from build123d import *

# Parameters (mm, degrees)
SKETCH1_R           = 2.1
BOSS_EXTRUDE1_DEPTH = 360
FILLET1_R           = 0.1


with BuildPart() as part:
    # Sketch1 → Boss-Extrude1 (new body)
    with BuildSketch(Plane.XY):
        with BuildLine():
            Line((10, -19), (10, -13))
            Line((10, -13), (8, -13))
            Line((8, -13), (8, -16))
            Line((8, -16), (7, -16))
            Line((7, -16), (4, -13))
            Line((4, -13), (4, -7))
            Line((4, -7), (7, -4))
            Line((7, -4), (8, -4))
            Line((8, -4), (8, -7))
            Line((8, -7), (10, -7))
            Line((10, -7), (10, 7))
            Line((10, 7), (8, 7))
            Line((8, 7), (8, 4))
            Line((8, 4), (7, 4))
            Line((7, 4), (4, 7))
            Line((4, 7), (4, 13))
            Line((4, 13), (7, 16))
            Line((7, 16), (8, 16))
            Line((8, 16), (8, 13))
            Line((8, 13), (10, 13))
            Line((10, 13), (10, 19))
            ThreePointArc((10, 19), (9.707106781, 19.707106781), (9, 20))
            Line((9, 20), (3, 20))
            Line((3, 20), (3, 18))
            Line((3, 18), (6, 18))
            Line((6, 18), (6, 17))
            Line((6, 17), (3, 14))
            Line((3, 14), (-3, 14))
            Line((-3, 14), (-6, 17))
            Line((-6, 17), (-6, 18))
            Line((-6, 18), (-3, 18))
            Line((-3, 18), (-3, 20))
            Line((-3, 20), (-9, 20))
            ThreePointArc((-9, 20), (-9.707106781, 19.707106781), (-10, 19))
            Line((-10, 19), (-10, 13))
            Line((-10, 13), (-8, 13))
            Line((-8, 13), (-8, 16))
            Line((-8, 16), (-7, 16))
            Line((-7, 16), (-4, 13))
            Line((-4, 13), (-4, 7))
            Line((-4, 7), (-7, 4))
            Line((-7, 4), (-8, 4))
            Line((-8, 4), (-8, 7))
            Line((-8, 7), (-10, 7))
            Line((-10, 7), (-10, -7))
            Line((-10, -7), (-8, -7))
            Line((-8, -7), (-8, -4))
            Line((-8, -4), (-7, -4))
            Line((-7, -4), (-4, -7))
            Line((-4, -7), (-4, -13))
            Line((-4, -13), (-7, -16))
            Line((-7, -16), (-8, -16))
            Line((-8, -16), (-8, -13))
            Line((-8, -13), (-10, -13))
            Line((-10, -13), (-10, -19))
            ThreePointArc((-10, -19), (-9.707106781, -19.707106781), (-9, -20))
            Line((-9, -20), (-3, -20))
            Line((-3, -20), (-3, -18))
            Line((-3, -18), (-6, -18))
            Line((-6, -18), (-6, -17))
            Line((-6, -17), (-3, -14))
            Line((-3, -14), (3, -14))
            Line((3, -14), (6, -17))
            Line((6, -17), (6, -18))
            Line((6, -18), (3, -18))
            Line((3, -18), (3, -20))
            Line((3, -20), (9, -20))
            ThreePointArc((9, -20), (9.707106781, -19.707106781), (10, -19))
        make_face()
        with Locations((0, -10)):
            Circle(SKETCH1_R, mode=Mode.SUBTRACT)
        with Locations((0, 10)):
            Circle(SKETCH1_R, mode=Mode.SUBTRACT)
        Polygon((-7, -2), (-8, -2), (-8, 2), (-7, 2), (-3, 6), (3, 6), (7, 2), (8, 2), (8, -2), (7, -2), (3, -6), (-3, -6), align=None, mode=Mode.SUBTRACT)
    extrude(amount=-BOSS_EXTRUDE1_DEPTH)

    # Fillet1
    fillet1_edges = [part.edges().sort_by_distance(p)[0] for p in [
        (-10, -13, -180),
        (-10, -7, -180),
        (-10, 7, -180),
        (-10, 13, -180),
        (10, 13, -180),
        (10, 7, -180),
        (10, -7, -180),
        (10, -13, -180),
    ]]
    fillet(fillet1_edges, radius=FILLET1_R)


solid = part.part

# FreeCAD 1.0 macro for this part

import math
import FreeCAD as App
import Part
import Sketcher

V = App.Vector
Q = App.Units.Quantity


def edges_at(feature, points):
    """Names of the edges that pass closest to the given points."""
    edges = feature.Shape.Edges
    near = lambda p: min(range(len(edges)), key=lambda i: edges[i].distToShape(Part.Vertex(*p))[0])
    return sorted({f"Edge{near(p) + 1}" for p in points})


def add_polygon(sketch, points):
    """Adds a closed chain of lines whose ends are joined by coincident constraints."""
    first, n = sketch.GeometryCount, len(points)
    for a, b in zip(points, points[1:] + points[:1]):
        sketch.addGeometry(Part.LineSegment(App.Vector(*a, 0), App.Vector(*b, 0)), False)
    for i in range(n):
        sketch.addConstraint(Sketcher.Constraint("Coincident", first + i, 2, first + (i + 1) % n, 1))

doc = App.newDocument("Part")
body = doc.addObject("PartDesign::Body", "Body")

sketch1 = doc.addObject("Sketcher::SketchObject", "Sketch")
body.addObject(sketch1)
sketch1.AttachmentSupport = (doc.XY_Plane, [""])
sketch1.MapMode = "FlatFace"
sketch1.addGeometry(Part.LineSegment(V(10, -19, 0), V(10, -13, 0)), False)
sketch1.addGeometry(Part.LineSegment(V(10, -13, 0), V(8, -13, 0)), False)
sketch1.addGeometry(Part.LineSegment(V(8, -13, 0), V(8, -16, 0)), False)
sketch1.addGeometry(Part.LineSegment(V(8, -16, 0), V(7, -16, 0)), False)
sketch1.addGeometry(Part.LineSegment(V(7, -16, 0), V(4, -13, 0)), False)
sketch1.addGeometry(Part.LineSegment(V(4, -13, 0), V(4, -7, 0)), False)
sketch1.addGeometry(Part.LineSegment(V(4, -7, 0), V(7, -4, 0)), False)
sketch1.addGeometry(Part.LineSegment(V(7, -4, 0), V(8, -4, 0)), False)
sketch1.addGeometry(Part.LineSegment(V(8, -4, 0), V(8, -7, 0)), False)
sketch1.addGeometry(Part.LineSegment(V(8, -7, 0), V(10, -7, 0)), False)
sketch1.addGeometry(Part.LineSegment(V(10, -7, 0), V(10, 7, 0)), False)
sketch1.addGeometry(Part.LineSegment(V(10, 7, 0), V(8, 7, 0)), False)
sketch1.addGeometry(Part.LineSegment(V(8, 7, 0), V(8, 4, 0)), False)
sketch1.addGeometry(Part.LineSegment(V(8, 4, 0), V(7, 4, 0)), False)
sketch1.addGeometry(Part.LineSegment(V(7, 4, 0), V(4, 7, 0)), False)
sketch1.addGeometry(Part.LineSegment(V(4, 7, 0), V(4, 13, 0)), False)
sketch1.addGeometry(Part.LineSegment(V(4, 13, 0), V(7, 16, 0)), False)
sketch1.addGeometry(Part.LineSegment(V(7, 16, 0), V(8, 16, 0)), False)
sketch1.addGeometry(Part.LineSegment(V(8, 16, 0), V(8, 13, 0)), False)
sketch1.addGeometry(Part.LineSegment(V(8, 13, 0), V(10, 13, 0)), False)
sketch1.addGeometry(Part.LineSegment(V(10, 13, 0), V(10, 19, 0)), False)
sketch1.addGeometry(Part.ArcOfCircle(Part.Circle(V(9, 19, 0), V(0, 0, 1), 1), math.radians(0), math.radians(90)), False)
sketch1.addGeometry(Part.LineSegment(V(9, 20, 0), V(3, 20, 0)), False)
sketch1.addGeometry(Part.LineSegment(V(3, 20, 0), V(3, 18, 0)), False)
sketch1.addGeometry(Part.LineSegment(V(3, 18, 0), V(6, 18, 0)), False)
sketch1.addGeometry(Part.LineSegment(V(6, 18, 0), V(6, 17, 0)), False)
sketch1.addGeometry(Part.LineSegment(V(6, 17, 0), V(3, 14, 0)), False)
sketch1.addGeometry(Part.LineSegment(V(3, 14, 0), V(-3, 14, 0)), False)
sketch1.addGeometry(Part.LineSegment(V(-3, 14, 0), V(-6, 17, 0)), False)
sketch1.addGeometry(Part.LineSegment(V(-6, 17, 0), V(-6, 18, 0)), False)
sketch1.addGeometry(Part.LineSegment(V(-6, 18, 0), V(-3, 18, 0)), False)
sketch1.addGeometry(Part.LineSegment(V(-3, 18, 0), V(-3, 20, 0)), False)
sketch1.addGeometry(Part.LineSegment(V(-3, 20, 0), V(-9, 20, 0)), False)
sketch1.addGeometry(Part.ArcOfCircle(Part.Circle(V(-9, 19, 0), V(0, 0, 1), 1), math.radians(90), math.radians(180)), False)
sketch1.addGeometry(Part.LineSegment(V(-10, 19, 0), V(-10, 13, 0)), False)
sketch1.addGeometry(Part.LineSegment(V(-10, 13, 0), V(-8, 13, 0)), False)
sketch1.addGeometry(Part.LineSegment(V(-8, 13, 0), V(-8, 16, 0)), False)
sketch1.addGeometry(Part.LineSegment(V(-8, 16, 0), V(-7, 16, 0)), False)
sketch1.addGeometry(Part.LineSegment(V(-7, 16, 0), V(-4, 13, 0)), False)
sketch1.addGeometry(Part.LineSegment(V(-4, 13, 0), V(-4, 7, 0)), False)
sketch1.addGeometry(Part.LineSegment(V(-4, 7, 0), V(-7, 4, 0)), False)
sketch1.addGeometry(Part.LineSegment(V(-7, 4, 0), V(-8, 4, 0)), False)
sketch1.addGeometry(Part.LineSegment(V(-8, 4, 0), V(-8, 7, 0)), False)
sketch1.addGeometry(Part.LineSegment(V(-8, 7, 0), V(-10, 7, 0)), False)
sketch1.addGeometry(Part.LineSegment(V(-10, 7, 0), V(-10, -7, 0)), False)
sketch1.addGeometry(Part.LineSegment(V(-10, -7, 0), V(-8, -7, 0)), False)
sketch1.addGeometry(Part.LineSegment(V(-8, -7, 0), V(-8, -4, 0)), False)
sketch1.addGeometry(Part.LineSegment(V(-8, -4, 0), V(-7, -4, 0)), False)
sketch1.addGeometry(Part.LineSegment(V(-7, -4, 0), V(-4, -7, 0)), False)
sketch1.addGeometry(Part.LineSegment(V(-4, -7, 0), V(-4, -13, 0)), False)
sketch1.addGeometry(Part.LineSegment(V(-4, -13, 0), V(-7, -16, 0)), False)
sketch1.addGeometry(Part.LineSegment(V(-7, -16, 0), V(-8, -16, 0)), False)
sketch1.addGeometry(Part.LineSegment(V(-8, -16, 0), V(-8, -13, 0)), False)
sketch1.addGeometry(Part.LineSegment(V(-8, -13, 0), V(-10, -13, 0)), False)
sketch1.addGeometry(Part.LineSegment(V(-10, -13, 0), V(-10, -19, 0)), False)
sketch1.addGeometry(Part.ArcOfCircle(Part.Circle(V(-9, -19, 0), V(0, 0, 1), 1), math.radians(-180), math.radians(-90)), False)
sketch1.addGeometry(Part.LineSegment(V(-9, -20, 0), V(-3, -20, 0)), False)
sketch1.addGeometry(Part.LineSegment(V(-3, -20, 0), V(-3, -18, 0)), False)
sketch1.addGeometry(Part.LineSegment(V(-3, -18, 0), V(-6, -18, 0)), False)
sketch1.addGeometry(Part.LineSegment(V(-6, -18, 0), V(-6, -17, 0)), False)
sketch1.addGeometry(Part.LineSegment(V(-6, -17, 0), V(-3, -14, 0)), False)
sketch1.addGeometry(Part.LineSegment(V(-3, -14, 0), V(3, -14, 0)), False)
sketch1.addGeometry(Part.LineSegment(V(3, -14, 0), V(6, -17, 0)), False)
sketch1.addGeometry(Part.LineSegment(V(6, -17, 0), V(6, -18, 0)), False)
sketch1.addGeometry(Part.LineSegment(V(6, -18, 0), V(3, -18, 0)), False)
sketch1.addGeometry(Part.LineSegment(V(3, -18, 0), V(3, -20, 0)), False)
sketch1.addGeometry(Part.LineSegment(V(3, -20, 0), V(9, -20, 0)), False)
sketch1.addGeometry(Part.ArcOfCircle(Part.Circle(V(9, -19, 0), V(0, 0, 1), 1), math.radians(-90), math.radians(0)), False)
sketch1.addGeometry(Part.Circle(V(0, -10, 0), V(0, 0, 1), 2.1), False)
add_polygon(sketch1, [(-3, -6), (-7, -2), (-8, -2), (-8, 2), (-7, 2), (-3, 6), (3, 6), (7, 2), (8, 2), (8, -2), (7, -2), (3, -6)])
sketch1.addGeometry(Part.Circle(V(0, 10, 0), V(0, 0, 1), 2.1), False)
sketch1.addConstraint([
    Sketcher.Constraint("Coincident", 0, 2, 1, 1),
    Sketcher.Constraint("Coincident", 1, 2, 2, 1),
    Sketcher.Constraint("Coincident", 2, 2, 3, 1),
    Sketcher.Constraint("Coincident", 3, 2, 4, 1),
    Sketcher.Constraint("Coincident", 4, 2, 5, 1),
    Sketcher.Constraint("Coincident", 5, 2, 6, 1),
    Sketcher.Constraint("Coincident", 6, 2, 7, 1),
    Sketcher.Constraint("Coincident", 7, 2, 8, 1),
    Sketcher.Constraint("Coincident", 8, 2, 9, 1),
    Sketcher.Constraint("Coincident", 9, 2, 10, 1),
    Sketcher.Constraint("Coincident", 10, 2, 11, 1),
    Sketcher.Constraint("Coincident", 11, 2, 12, 1),
    Sketcher.Constraint("Coincident", 12, 2, 13, 1),
    Sketcher.Constraint("Coincident", 13, 2, 14, 1),
    Sketcher.Constraint("Coincident", 14, 2, 15, 1),
    Sketcher.Constraint("Coincident", 15, 2, 16, 1),
    Sketcher.Constraint("Coincident", 16, 2, 17, 1),
    Sketcher.Constraint("Coincident", 17, 2, 18, 1),
    Sketcher.Constraint("Coincident", 18, 2, 19, 1),
    Sketcher.Constraint("Coincident", 19, 2, 20, 1),
    Sketcher.Constraint("Tangent", 20, 2, 21, 1),
    Sketcher.Constraint("Tangent", 21, 2, 22, 1),
    Sketcher.Constraint("Coincident", 22, 2, 23, 1),
    Sketcher.Constraint("Coincident", 23, 2, 24, 1),
    Sketcher.Constraint("Coincident", 24, 2, 25, 1),
    Sketcher.Constraint("Coincident", 25, 2, 26, 1),
    Sketcher.Constraint("Coincident", 26, 2, 27, 1),
    Sketcher.Constraint("Coincident", 27, 2, 28, 1),
    Sketcher.Constraint("Coincident", 28, 2, 29, 1),
    Sketcher.Constraint("Coincident", 29, 2, 30, 1),
    Sketcher.Constraint("Coincident", 30, 2, 31, 1),
    Sketcher.Constraint("Coincident", 31, 2, 32, 1),
    Sketcher.Constraint("Tangent", 32, 2, 33, 1),
    Sketcher.Constraint("Tangent", 33, 2, 34, 1),
    Sketcher.Constraint("Coincident", 34, 2, 35, 1),
    Sketcher.Constraint("Coincident", 35, 2, 36, 1),
    Sketcher.Constraint("Coincident", 36, 2, 37, 1),
    Sketcher.Constraint("Coincident", 37, 2, 38, 1),
    Sketcher.Constraint("Coincident", 38, 2, 39, 1),
    Sketcher.Constraint("Coincident", 39, 2, 40, 1),
    Sketcher.Constraint("Coincident", 40, 2, 41, 1),
    Sketcher.Constraint("Coincident", 41, 2, 42, 1),
    Sketcher.Constraint("Coincident", 42, 2, 43, 1),
    Sketcher.Constraint("Coincident", 43, 2, 44, 1),
    Sketcher.Constraint("Coincident", 44, 2, 45, 1),
    Sketcher.Constraint("Coincident", 45, 2, 46, 1),
    Sketcher.Constraint("Coincident", 46, 2, 47, 1),
    Sketcher.Constraint("Coincident", 47, 2, 48, 1),
    Sketcher.Constraint("Coincident", 48, 2, 49, 1),
    Sketcher.Constraint("Coincident", 49, 2, 50, 1),
    Sketcher.Constraint("Coincident", 50, 2, 51, 1),
    Sketcher.Constraint("Coincident", 51, 2, 52, 1),
    Sketcher.Constraint("Coincident", 52, 2, 53, 1),
    Sketcher.Constraint("Coincident", 53, 2, 54, 1),
    Sketcher.Constraint("Tangent", 54, 2, 55, 1),
    Sketcher.Constraint("Tangent", 55, 2, 56, 1),
    Sketcher.Constraint("Coincident", 56, 2, 57, 1),
    Sketcher.Constraint("Coincident", 57, 2, 58, 1),
    Sketcher.Constraint("Coincident", 58, 2, 59, 1),
    Sketcher.Constraint("Coincident", 59, 2, 60, 1),
    Sketcher.Constraint("Coincident", 60, 2, 61, 1),
    Sketcher.Constraint("Coincident", 61, 2, 62, 1),
    Sketcher.Constraint("Coincident", 62, 2, 63, 1),
    Sketcher.Constraint("Coincident", 63, 2, 64, 1),
    Sketcher.Constraint("Coincident", 64, 2, 65, 1),
    Sketcher.Constraint("Coincident", 65, 2, 66, 1),
    Sketcher.Constraint("Tangent", 66, 2, 67, 1),
    Sketcher.Constraint("Tangent", 67, 2, 0, 1),
    Sketcher.Constraint("Vertical", 0),
    Sketcher.Constraint("Horizontal", 1),
    Sketcher.Constraint("Vertical", 2),
    Sketcher.Constraint("Horizontal", 3),
    Sketcher.Constraint("Vertical", 5),
    Sketcher.Constraint("Horizontal", 7),
    Sketcher.Constraint("Vertical", 8),
    Sketcher.Constraint("Horizontal", 9),
    Sketcher.Constraint("Vertical", 10),
    Sketcher.Constraint("Horizontal", 11),
    Sketcher.Constraint("Vertical", 12),
    Sketcher.Constraint("Horizontal", 13),
    Sketcher.Constraint("Vertical", 15),
    Sketcher.Constraint("Horizontal", 17),
    Sketcher.Constraint("Vertical", 18),
    Sketcher.Constraint("Horizontal", 19),
    Sketcher.Constraint("Vertical", 20),
    Sketcher.Constraint("Horizontal", 22),
    Sketcher.Constraint("Vertical", 23),
    Sketcher.Constraint("Horizontal", 24),
    Sketcher.Constraint("Vertical", 25),
    Sketcher.Constraint("Horizontal", 27),
    Sketcher.Constraint("Vertical", 29),
    Sketcher.Constraint("Horizontal", 30),
    Sketcher.Constraint("Vertical", 31),
    Sketcher.Constraint("Horizontal", 32),
    Sketcher.Constraint("Vertical", 34),
    Sketcher.Constraint("Horizontal", 35),
    Sketcher.Constraint("Vertical", 36),
    Sketcher.Constraint("Horizontal", 37),
    Sketcher.Constraint("Vertical", 39),
    Sketcher.Constraint("Horizontal", 41),
    Sketcher.Constraint("Vertical", 42),
    Sketcher.Constraint("Horizontal", 43),
    Sketcher.Constraint("Vertical", 44),
    Sketcher.Constraint("Horizontal", 45),
    Sketcher.Constraint("Vertical", 46),
    Sketcher.Constraint("Horizontal", 47),
    Sketcher.Constraint("Vertical", 49),
    Sketcher.Constraint("Horizontal", 51),
    Sketcher.Constraint("Vertical", 52),
    Sketcher.Constraint("Horizontal", 53),
    Sketcher.Constraint("Vertical", 54),
    Sketcher.Constraint("Horizontal", 56),
    Sketcher.Constraint("Vertical", 57),
    Sketcher.Constraint("Horizontal", 58),
    Sketcher.Constraint("Vertical", 59),
    Sketcher.Constraint("Horizontal", 61),
    Sketcher.Constraint("Vertical", 63),
    Sketcher.Constraint("Horizontal", 64),
    Sketcher.Constraint("Vertical", 65),
    Sketcher.Constraint("Horizontal", 66),
    Sketcher.Constraint("Horizontal", 70),
    Sketcher.Constraint("Vertical", 71),
    Sketcher.Constraint("Horizontal", 72),
    Sketcher.Constraint("Horizontal", 74),
    Sketcher.Constraint("Horizontal", 76),
    Sketcher.Constraint("Vertical", 77),
    Sketcher.Constraint("Horizontal", 78),
    Sketcher.Constraint("Horizontal", 80),
    Sketcher.Constraint("Equal", 21, 33),
    Sketcher.Constraint("Equal", 33, 55),
    Sketcher.Constraint("Equal", 55, 67),
    Sketcher.Constraint("Equal", 68, 81),
    Sketcher.Constraint("Symmetric", 21, 3, 55, 3, -1, 1),
    Sketcher.Constraint("Symmetric", 33, 3, 67, 3, -1, 1),
    Sketcher.Constraint("Symmetric", 68, 3, 81, 3, -1, 1),
    Sketcher.Constraint("Symmetric", 1, 2, 35, 2, -1, 1),
    Sketcher.Constraint("Symmetric", 3, 2, 37, 2, -1, 1),
    Sketcher.Constraint("Symmetric", 4, 2, 38, 2, -1, 1),
    Sketcher.Constraint("Symmetric", 6, 2, 40, 2, -1, 1),
    Sketcher.Constraint("Symmetric", 8, 2, 42, 2, -1, 1),
    Sketcher.Constraint("Symmetric", 10, 2, 44, 2, -1, 1),
    Sketcher.Constraint("Symmetric", 12, 2, 46, 2, -1, 1),
    Sketcher.Constraint("Symmetric", 14, 2, 48, 2, -1, 1),
    Sketcher.Constraint("Symmetric", 16, 2, 50, 2, -1, 1),
    Sketcher.Constraint("Symmetric", 18, 2, 52, 2, -1, 1),
    Sketcher.Constraint("Symmetric", 23, 2, 57, 2, -1, 1),
    Sketcher.Constraint("Symmetric", 25, 2, 59, 2, -1, 1),
    Sketcher.Constraint("Symmetric", 26, 2, 60, 2, -1, 1),
    Sketcher.Constraint("Symmetric", 28, 2, 62, 2, -1, 1),
    Sketcher.Constraint("Symmetric", 30, 2, 64, 2, -1, 1),
    Sketcher.Constraint("Symmetric", 69, 2, 75, 2, -1, 1),
    Sketcher.Constraint("Symmetric", 71, 2, 77, 2, -1, 1),
    Sketcher.Constraint("Symmetric", 73, 2, 79, 2, -1, 1),
    Sketcher.Constraint("Symmetric", 21, 3, 33, 3, -2),
    Sketcher.Constraint("Symmetric", 25, 2, 28, 2, -2),
    Sketcher.Constraint("Symmetric", 23, 2, 30, 2, -2),
    Sketcher.Constraint("Symmetric", 18, 2, 35, 2, -2),
    Sketcher.Constraint("Symmetric", 16, 2, 37, 2, -2),
    Sketcher.Constraint("Symmetric", 15, 2, 38, 2, -2),
    Sketcher.Constraint("Symmetric", 13, 2, 40, 2, -2),
    Sketcher.Constraint("Symmetric", 11, 2, 42, 2, -2),
    Sketcher.Constraint("Symmetric", 72, 2, 75, 2, -2),
    Sketcher.Constraint("PointOnObject", 68, 3, -2),
    Sketcher.Constraint("Perpendicular", 4, 6),
    Sketcher.Constraint("Perpendicular", 6, 14),
    Sketcher.Constraint("Perpendicular", 14, 16),
    Sketcher.Constraint("Parallel", 16, 26),
    Sketcher.Constraint("Perpendicular", 26, 28),
    Sketcher.Constraint("Perpendicular", 38, 40),
    Sketcher.Constraint("Perpendicular", 40, 48),
    Sketcher.Constraint("Perpendicular", 48, 50),
    Sketcher.Constraint("Perpendicular", 60, 62),
    Sketcher.Constraint("Parallel", 62, 69),
    Sketcher.Constraint("Perpendicular", 69, 73),
    Sketcher.Constraint("Perpendicular", 73, 75),
    Sketcher.Constraint("Perpendicular", 75, 79),
    Sketcher.Constraint("Horizontal", 1, 2, 4, 2),
    Sketcher.Constraint("Horizontal", 5, 2, 8, 2),
    Sketcher.Constraint("Vertical", 3, 2, 6, 2),
    Sketcher.Constraint("Vertical", 2, 2, 7, 2),
    Sketcher.Constraint("Vertical", 0, 2, 9, 2),
    Sketcher.Constraint("Vertical", 23, 2, 26, 2),
    Sketcher.Constraint("Vertical", 50, 2, 69, 2),
    Sketcher.Constraint("Vertical", 52, 2, 70, 2),
    Sketcher.Constraint("Vertical", 60, 2, 73, 2),
    Sketcher.Constraint("Equal", 22, 27),
    Sketcher.Constraint("Equal", 80, 0),
    Sketcher.Constraint("Equal", 64, 2),
    Sketcher.Constraint("Equal", 0, 5),
    Sketcher.Constraint("Equal", 53, 23),
    Sketcher.Constraint("Equal", 78, 25),
    Sketcher.Constraint("Radius", 21, Q("1 mm")),
    Sketcher.Constraint("Diameter", 68, Q("4.2 mm")),
    Sketcher.Constraint("DistanceX", 1, 2, 1, 1, Q("2 mm")),
    Sketcher.Constraint("DistanceX", 3, 2, 3, 1, Q("1 mm")),
    Sketcher.Constraint("DistanceX", 22, 2, 22, 1, Q("6 mm")),
    Sketcher.Constraint("DistanceX", 24, 1, 24, 2, Q("3 mm")),
    Sketcher.Constraint("DistanceY", 10, 1, 10, 2, Q("14 mm")),
    Sketcher.Constraint("DistanceY", 71, 1, 71, 2, Q("4 mm")),
    Sketcher.Constraint("DistanceY", 68, 3, -1, 1, Q("10 mm")),
])
pad1 = doc.addObject("PartDesign::Pad", "Pad")
body.addObject(pad1)
pad1.Profile = sketch1
pad1.Length = 360
pad1.Reversed = True
doc.recompute()

fillet = doc.addObject("PartDesign::Fillet", "Fillet")
body.addObject(fillet)
fillet.Base = (pad1, edges_at(pad1, [
    (-10, -13, -180),
    (-10, -7, -180),
    (-10, 7, -180),
    (-10, 13, -180),
    (10, 13, -180),
    (10, 7, -180),
    (10, -7, -180),
    (10, -13, -180),
]))
fillet.Radius = 0.1

doc.recompute()
